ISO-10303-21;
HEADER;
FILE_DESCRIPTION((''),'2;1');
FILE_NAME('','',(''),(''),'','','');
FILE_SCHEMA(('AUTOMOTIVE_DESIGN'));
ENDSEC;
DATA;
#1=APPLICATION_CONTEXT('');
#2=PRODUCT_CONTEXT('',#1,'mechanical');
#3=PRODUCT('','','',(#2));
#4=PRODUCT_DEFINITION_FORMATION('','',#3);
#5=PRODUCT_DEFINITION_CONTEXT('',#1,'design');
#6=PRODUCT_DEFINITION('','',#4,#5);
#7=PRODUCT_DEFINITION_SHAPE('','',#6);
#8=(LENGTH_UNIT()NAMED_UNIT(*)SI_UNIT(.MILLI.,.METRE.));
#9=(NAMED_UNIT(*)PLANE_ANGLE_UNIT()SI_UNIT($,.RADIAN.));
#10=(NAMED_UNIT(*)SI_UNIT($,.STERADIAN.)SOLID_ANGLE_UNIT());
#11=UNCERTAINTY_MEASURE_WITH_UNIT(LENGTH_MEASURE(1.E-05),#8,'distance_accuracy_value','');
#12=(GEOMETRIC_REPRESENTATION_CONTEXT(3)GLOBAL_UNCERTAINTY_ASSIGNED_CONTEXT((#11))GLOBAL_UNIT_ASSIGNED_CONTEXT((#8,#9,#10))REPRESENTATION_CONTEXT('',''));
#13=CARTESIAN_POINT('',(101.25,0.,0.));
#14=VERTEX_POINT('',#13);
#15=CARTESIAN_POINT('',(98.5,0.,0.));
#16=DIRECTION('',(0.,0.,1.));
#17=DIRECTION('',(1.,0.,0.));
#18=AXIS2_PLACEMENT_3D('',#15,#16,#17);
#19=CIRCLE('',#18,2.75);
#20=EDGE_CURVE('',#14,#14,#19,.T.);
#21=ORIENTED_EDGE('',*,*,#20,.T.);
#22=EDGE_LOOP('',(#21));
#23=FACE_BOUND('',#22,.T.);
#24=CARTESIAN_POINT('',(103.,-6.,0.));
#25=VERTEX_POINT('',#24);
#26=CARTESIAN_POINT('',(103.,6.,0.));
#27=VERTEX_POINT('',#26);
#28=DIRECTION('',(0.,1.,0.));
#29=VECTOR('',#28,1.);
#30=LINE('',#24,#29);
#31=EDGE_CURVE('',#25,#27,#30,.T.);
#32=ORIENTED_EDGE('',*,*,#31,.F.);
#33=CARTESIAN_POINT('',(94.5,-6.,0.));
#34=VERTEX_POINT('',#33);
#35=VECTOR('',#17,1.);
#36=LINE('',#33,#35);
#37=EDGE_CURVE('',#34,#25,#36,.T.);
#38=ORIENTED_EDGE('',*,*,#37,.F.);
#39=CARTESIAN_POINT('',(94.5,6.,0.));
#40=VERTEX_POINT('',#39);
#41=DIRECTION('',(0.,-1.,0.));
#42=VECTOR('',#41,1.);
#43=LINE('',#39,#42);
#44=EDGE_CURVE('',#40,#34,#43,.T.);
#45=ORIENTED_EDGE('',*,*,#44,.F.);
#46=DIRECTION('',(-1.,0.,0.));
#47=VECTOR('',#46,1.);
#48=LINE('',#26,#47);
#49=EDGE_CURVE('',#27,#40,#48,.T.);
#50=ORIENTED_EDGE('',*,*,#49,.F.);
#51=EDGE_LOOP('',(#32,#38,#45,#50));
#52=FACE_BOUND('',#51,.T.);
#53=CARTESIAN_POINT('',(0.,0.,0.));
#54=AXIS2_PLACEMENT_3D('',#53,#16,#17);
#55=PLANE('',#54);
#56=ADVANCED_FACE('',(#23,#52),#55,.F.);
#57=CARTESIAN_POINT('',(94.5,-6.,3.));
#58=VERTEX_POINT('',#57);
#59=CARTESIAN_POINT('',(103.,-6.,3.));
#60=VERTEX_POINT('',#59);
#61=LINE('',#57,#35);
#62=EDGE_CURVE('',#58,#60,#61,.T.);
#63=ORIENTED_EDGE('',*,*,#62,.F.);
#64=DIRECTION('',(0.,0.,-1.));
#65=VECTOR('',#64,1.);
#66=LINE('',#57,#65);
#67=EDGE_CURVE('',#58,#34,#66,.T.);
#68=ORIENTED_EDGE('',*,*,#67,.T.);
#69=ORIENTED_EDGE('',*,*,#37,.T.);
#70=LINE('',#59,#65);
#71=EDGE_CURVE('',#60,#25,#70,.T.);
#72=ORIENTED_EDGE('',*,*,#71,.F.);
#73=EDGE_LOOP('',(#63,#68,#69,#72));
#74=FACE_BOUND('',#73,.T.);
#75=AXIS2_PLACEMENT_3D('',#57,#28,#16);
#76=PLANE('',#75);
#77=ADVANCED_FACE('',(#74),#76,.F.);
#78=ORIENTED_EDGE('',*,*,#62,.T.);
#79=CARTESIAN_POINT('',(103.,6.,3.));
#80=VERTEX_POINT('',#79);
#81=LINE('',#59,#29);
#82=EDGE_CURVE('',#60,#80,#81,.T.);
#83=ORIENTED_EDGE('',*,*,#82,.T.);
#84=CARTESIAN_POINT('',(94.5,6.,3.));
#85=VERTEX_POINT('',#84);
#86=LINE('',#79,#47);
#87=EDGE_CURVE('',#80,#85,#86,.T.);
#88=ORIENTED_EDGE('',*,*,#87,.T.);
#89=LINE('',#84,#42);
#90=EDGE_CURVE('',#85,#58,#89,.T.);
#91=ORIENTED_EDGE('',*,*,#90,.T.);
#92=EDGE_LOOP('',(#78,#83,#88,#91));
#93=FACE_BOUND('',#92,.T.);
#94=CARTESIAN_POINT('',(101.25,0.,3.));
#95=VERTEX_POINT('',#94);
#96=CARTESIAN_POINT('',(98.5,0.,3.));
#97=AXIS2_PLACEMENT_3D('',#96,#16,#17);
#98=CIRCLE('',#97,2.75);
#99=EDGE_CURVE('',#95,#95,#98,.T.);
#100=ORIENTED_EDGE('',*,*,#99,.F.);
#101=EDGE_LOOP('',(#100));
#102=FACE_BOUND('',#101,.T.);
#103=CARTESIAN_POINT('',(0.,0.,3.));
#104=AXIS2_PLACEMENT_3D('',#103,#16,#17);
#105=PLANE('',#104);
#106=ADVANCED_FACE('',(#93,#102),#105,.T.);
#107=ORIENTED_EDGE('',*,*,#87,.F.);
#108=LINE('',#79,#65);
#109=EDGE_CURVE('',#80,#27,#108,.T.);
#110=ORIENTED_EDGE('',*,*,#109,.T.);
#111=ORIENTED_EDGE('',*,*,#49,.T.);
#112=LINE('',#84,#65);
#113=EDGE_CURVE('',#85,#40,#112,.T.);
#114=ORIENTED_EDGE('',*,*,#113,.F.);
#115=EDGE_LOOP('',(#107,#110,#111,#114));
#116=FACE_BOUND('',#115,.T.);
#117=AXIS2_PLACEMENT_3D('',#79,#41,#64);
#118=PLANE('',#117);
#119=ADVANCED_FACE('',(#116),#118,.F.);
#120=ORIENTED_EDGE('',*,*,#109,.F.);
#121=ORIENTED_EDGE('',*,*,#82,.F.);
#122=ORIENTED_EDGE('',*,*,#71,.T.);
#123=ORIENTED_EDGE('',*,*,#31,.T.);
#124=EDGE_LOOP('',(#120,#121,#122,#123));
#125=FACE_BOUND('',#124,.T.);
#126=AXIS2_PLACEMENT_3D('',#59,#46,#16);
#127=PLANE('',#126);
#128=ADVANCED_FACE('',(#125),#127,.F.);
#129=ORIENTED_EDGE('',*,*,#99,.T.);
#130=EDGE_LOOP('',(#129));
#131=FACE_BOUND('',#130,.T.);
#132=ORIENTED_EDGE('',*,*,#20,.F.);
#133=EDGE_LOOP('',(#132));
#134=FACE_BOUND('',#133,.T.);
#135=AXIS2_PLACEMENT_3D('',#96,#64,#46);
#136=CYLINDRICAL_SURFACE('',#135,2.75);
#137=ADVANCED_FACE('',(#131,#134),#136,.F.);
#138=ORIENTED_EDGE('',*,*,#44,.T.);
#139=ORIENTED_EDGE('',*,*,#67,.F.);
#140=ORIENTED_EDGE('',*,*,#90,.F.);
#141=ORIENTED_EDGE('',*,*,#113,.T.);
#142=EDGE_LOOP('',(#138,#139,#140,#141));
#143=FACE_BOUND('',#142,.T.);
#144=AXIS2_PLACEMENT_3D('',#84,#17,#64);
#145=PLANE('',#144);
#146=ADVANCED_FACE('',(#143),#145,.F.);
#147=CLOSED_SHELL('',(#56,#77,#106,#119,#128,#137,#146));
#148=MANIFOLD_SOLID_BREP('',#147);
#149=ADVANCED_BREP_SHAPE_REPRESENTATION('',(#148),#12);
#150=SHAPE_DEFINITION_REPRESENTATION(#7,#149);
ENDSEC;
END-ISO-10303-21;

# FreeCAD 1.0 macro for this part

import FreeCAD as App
import Part
import Sketcher
from FreeCAD import Vector
Q = App.Units.Quantity

doc = App.newDocument("Part")
body = doc.addObject("PartDesign::Body", "Body")

sketch1 = doc.addObject("Sketcher::SketchObject", "Sketch")
body.addObject(sketch1)
sketch1.AttachmentSupport = (doc.XY_Plane, [""])
sketch1.MapMode = "FlatFace"
sketch1.addGeometry([
    Part.LineSegment(Vector(94.5, 6, 0), Vector(94.5, -6, 0)),
    Part.LineSegment(Vector(94.5, -6, 0), Vector(103, -6, 0)),
    Part.LineSegment(Vector(103, -6, 0), Vector(103, 6, 0)),
    Part.LineSegment(Vector(103, 6, 0), Vector(94.5, 6, 0)),
    Part.Circle(Vector(98.5, 0, 0), Vector(0, 0, 1), 2.8),
], False)
sketch1.addConstraint([
    Sketcher.Constraint("Coincident", 0, 2, 1, 1),
    Sketcher.Constraint("Coincident", 1, 2, 2, 1),
    Sketcher.Constraint("Coincident", 2, 2, 3, 1),
    Sketcher.Constraint("Coincident", 3, 2, 0, 1),
    Sketcher.Constraint("Vertical", 0),
    Sketcher.Constraint("Horizontal", 1),
    Sketcher.Constraint("Vertical", 2),
    Sketcher.Constraint("Horizontal", 3),
    Sketcher.Constraint("PointOnObject", 4, 3, -1),
    Sketcher.Constraint("Diameter", 4, Q("5.5 mm")),
    Sketcher.Constraint("DistanceY", 0, 2, 0, 1, Q("12 mm")),
    Sketcher.Constraint("DistanceX", 1, 1, 1, 2, Q("8.5 mm")),
    Sketcher.Constraint("DistanceY", 0, 2, -1, 1, Q("6 mm")),
    Sketcher.Constraint("DistanceX", -1, 1, 1, 2, Q("103 mm")),
    Sketcher.Constraint("DistanceX", 0, 2, 4, 3, Q("4 mm")),
])
pad1 = doc.addObject("PartDesign::Pad", "Pad")
body.addObject(pad1)
pad1.Profile = sketch1
pad1.Length = 3

doc.recompute()
